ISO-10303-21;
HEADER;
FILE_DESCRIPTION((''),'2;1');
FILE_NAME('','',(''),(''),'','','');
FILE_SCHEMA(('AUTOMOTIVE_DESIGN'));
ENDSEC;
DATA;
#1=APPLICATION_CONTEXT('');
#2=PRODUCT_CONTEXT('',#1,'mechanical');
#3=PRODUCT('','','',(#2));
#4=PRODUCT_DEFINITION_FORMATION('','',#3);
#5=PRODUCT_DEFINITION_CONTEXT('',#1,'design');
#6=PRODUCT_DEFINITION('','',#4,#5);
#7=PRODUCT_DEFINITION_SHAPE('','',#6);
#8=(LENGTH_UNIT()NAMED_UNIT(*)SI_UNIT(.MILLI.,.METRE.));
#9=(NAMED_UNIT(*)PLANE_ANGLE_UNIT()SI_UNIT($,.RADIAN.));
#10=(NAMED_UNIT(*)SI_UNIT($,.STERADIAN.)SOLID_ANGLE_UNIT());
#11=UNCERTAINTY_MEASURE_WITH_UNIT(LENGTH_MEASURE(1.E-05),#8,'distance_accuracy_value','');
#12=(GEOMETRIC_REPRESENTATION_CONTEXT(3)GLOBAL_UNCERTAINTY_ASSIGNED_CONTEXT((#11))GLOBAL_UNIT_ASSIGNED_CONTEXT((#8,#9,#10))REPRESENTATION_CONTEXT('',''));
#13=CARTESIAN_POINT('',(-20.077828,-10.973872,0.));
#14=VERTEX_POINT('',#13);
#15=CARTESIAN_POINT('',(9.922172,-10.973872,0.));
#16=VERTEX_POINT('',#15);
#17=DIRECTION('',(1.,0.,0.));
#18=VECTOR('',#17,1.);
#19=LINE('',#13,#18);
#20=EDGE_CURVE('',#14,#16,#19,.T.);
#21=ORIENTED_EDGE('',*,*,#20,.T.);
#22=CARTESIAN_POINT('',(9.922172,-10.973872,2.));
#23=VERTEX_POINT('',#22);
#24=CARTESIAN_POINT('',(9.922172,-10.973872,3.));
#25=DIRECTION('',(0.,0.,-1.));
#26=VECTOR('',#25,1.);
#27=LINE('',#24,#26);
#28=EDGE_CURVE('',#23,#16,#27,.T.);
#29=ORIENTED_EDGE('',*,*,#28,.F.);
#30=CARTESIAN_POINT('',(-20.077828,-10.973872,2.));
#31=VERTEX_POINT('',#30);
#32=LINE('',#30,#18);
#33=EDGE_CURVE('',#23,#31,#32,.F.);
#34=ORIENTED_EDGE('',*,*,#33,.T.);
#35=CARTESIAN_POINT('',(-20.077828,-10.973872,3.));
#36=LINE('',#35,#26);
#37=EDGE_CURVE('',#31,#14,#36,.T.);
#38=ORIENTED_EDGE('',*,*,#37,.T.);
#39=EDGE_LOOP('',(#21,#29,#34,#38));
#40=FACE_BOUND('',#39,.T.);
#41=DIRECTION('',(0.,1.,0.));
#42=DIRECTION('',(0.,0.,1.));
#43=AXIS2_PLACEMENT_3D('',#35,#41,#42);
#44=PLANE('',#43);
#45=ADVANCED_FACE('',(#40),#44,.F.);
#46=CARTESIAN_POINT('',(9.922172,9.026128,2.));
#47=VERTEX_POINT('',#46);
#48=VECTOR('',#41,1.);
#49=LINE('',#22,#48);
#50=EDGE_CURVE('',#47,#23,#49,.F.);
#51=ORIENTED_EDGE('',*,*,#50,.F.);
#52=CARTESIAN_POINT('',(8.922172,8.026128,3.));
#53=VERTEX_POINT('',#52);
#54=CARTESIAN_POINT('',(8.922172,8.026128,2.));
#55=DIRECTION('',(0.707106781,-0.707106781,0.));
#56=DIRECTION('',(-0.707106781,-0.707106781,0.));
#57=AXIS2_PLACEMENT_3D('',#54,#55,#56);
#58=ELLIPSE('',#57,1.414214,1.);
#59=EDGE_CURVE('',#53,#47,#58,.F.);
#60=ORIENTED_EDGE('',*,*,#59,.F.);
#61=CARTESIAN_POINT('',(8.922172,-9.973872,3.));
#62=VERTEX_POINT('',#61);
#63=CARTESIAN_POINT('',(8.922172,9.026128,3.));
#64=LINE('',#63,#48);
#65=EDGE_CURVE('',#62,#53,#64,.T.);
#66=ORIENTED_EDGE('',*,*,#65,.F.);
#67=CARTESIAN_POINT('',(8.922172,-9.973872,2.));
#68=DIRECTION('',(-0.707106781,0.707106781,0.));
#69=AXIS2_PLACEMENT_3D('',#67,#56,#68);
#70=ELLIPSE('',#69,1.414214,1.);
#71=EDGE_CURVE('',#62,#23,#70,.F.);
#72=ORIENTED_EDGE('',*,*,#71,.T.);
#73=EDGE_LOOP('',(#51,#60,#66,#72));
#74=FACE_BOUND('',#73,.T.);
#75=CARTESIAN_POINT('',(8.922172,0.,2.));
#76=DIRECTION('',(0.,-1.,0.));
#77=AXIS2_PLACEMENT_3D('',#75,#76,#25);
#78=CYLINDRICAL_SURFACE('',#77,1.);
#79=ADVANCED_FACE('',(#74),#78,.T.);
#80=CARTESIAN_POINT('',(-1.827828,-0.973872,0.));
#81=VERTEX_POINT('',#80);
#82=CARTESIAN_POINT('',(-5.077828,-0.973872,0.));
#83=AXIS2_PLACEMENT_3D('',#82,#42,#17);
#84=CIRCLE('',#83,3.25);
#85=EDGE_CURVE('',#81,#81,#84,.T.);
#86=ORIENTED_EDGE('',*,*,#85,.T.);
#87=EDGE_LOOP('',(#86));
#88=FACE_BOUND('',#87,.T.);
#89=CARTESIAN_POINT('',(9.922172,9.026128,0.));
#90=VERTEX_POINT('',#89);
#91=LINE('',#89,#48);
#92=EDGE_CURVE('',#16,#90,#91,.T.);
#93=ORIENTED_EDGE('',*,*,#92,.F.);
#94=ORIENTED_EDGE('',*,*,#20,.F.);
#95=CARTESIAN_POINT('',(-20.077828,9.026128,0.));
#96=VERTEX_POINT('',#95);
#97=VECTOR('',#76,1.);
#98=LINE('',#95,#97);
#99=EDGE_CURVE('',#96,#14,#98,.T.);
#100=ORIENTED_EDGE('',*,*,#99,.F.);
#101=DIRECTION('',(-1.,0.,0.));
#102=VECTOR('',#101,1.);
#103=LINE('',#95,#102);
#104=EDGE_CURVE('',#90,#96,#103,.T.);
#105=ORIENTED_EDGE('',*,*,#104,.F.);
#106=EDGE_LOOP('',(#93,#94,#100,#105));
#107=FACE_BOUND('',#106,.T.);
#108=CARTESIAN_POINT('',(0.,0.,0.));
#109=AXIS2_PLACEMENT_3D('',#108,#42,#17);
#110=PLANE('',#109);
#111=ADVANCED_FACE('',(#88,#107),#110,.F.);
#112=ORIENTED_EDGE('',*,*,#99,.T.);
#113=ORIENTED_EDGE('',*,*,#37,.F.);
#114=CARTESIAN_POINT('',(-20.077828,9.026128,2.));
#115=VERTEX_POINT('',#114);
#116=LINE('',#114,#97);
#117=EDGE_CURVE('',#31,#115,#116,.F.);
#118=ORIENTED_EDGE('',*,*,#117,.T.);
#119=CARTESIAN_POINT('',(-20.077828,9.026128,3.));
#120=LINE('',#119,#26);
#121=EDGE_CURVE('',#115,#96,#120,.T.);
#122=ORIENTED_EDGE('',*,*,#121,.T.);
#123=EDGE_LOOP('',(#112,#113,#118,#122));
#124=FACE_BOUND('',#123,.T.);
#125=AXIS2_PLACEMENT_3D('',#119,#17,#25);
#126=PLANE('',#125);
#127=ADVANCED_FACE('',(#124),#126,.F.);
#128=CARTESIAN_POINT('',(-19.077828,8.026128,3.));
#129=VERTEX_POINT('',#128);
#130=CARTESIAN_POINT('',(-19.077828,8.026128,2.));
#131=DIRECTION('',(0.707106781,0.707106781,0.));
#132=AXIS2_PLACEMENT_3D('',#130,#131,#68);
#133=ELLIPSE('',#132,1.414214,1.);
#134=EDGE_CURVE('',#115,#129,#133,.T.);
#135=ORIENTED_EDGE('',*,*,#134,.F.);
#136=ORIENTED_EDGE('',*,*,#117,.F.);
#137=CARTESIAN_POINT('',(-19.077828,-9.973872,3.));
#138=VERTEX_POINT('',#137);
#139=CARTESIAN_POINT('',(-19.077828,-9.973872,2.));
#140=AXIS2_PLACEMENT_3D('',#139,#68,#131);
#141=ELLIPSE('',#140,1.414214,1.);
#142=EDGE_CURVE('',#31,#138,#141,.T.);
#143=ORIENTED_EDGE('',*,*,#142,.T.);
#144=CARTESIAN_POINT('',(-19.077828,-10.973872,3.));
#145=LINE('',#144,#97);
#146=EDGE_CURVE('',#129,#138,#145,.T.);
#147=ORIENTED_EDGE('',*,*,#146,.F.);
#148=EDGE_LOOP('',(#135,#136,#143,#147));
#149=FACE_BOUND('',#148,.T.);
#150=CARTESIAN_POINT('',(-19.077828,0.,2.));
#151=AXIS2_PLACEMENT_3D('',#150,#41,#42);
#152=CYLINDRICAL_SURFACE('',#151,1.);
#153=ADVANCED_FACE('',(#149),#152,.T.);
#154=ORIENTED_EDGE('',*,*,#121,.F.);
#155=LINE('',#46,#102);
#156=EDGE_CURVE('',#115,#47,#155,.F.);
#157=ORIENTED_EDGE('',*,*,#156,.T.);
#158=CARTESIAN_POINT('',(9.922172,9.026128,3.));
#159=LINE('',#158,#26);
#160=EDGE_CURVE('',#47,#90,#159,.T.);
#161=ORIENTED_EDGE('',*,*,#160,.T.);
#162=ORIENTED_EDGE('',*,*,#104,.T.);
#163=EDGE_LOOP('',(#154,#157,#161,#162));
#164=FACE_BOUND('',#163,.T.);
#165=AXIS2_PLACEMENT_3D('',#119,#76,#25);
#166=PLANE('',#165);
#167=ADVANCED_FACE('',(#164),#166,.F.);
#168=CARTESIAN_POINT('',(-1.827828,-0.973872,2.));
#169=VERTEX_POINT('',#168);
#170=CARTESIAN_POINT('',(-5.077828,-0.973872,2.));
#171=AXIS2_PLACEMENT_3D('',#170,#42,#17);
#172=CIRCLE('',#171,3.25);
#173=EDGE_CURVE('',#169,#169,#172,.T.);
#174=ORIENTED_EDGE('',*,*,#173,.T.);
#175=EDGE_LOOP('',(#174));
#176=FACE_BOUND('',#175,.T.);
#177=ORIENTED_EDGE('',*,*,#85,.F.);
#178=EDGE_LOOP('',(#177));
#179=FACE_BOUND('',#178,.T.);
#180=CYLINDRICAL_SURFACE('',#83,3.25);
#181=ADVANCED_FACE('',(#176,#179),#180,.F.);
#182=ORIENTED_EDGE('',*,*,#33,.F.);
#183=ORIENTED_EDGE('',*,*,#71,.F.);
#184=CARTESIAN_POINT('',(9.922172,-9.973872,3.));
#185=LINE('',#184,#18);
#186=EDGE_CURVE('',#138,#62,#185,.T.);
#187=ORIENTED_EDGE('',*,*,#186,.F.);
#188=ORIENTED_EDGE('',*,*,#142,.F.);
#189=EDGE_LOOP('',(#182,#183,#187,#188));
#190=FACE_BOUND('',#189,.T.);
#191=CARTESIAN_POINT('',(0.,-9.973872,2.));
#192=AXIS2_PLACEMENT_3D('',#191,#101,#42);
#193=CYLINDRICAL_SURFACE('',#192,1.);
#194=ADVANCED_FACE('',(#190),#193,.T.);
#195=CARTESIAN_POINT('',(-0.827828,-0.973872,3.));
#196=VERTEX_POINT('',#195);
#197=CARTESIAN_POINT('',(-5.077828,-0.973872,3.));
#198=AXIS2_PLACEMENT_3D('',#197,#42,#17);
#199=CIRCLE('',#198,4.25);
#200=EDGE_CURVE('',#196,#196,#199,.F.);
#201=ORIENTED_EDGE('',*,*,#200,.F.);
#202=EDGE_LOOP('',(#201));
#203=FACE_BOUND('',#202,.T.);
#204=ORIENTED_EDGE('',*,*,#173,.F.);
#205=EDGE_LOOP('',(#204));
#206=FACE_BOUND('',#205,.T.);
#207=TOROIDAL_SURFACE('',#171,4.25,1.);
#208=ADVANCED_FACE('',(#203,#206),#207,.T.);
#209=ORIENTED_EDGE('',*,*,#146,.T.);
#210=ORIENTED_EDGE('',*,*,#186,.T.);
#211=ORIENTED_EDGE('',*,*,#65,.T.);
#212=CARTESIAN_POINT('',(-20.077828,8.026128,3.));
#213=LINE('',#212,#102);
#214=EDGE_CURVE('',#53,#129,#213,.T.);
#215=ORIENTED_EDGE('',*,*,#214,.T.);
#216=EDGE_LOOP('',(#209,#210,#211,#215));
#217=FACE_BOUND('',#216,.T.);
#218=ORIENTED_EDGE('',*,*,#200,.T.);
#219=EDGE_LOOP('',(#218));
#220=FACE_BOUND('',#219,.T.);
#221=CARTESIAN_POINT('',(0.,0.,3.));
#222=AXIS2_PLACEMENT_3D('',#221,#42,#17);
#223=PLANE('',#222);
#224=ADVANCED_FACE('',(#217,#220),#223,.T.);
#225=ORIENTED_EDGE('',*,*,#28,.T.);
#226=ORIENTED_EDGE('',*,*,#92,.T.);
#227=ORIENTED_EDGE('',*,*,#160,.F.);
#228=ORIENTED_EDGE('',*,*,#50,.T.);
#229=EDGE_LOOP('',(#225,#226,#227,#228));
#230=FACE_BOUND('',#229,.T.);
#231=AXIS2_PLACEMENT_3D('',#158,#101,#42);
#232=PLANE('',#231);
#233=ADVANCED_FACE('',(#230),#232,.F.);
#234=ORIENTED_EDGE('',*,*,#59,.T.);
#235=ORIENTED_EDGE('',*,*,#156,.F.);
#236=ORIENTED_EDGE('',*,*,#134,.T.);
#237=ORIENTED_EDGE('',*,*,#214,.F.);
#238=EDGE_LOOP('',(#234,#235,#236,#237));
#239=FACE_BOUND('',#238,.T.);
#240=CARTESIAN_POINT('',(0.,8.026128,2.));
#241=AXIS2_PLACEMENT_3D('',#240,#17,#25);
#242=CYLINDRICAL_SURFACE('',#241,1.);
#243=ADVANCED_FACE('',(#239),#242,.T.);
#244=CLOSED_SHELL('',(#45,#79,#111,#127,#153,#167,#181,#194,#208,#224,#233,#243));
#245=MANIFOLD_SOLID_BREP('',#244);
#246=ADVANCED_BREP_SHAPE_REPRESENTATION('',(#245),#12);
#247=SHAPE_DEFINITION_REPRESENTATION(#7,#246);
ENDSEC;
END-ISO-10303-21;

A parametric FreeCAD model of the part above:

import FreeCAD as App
import Part
import Sketcher


def edges_at(feature, points):
    """Names of the edges that pass closest to the given points."""
    edges = feature.Shape.Edges
    near = lambda p: min(range(len(edges)), key=lambda i: edges[i].distToShape(Part.Vertex(*p))[0])
    return sorted({f"Edge{near(p) + 1}" for p in points})


def add_polygon(sketch, points):
    """Adds a closed chain of lines whose ends are joined by coincident constraints."""
    first, n = sketch.GeometryCount, len(points)
    for a, b in zip(points, points[1:] + points[:1]):
        sketch.addGeometry(Part.LineSegment(App.Vector(*a, 0), App.Vector(*b, 0)), False)
    for i in range(n):
        sketch.addConstraint(Sketcher.Constraint("Coincident", first + i, 2, first + (i + 1) % n, 1))

doc = App.newDocument("Part")
params = doc.addObject("Spreadsheet::Sheet", "Params")
for row, (alias, value) in enumerate([
    ("sketch1_width", "30 mm"),
    ("sketch1_height", "20 mm"),
    ("pad1_length", "3 mm"),
    ("sketch2_diameter", "6.5 mm"),
    ("pocket1_length", "3 mm"),
    ("fillet_radius", "1 mm"),
], start=1):
    params.set(f"A{row}", alias)
    params.set(f"B{row}", "=" + value)
    params.setAlias(f"B{row}", alias)

body = doc.addObject("PartDesign::Body", "Body")

sketch1 = body.newObject("Sketcher::SketchObject", "Sketch")
sketch1.AttachmentSupport = (doc.getObject("XY_Plane"), [""])
sketch1.MapMode = "FlatFace"
add_polygon(sketch1, [(-20, 9), (-20, -11), (10, -11), (10, 9)])
sketch1.addConstraint(Sketcher.Constraint("Vertical", 0))
sketch1.addConstraint(Sketcher.Constraint("Horizontal", 1))
sketch1.addConstraint(Sketcher.Constraint("Vertical", 2))
sketch1.addConstraint(Sketcher.Constraint("Horizontal", 3))
sketch1.addConstraint(Sketcher.Constraint("DistanceX", 1, 1, 1, 2, 30.0))
sketch1.addConstraint(Sketcher.Constraint("DistanceY", 0, 2, 0, 1, 20.0))
sketch1.addConstraint(Sketcher.Constraint("DistanceX", 0, 2, -1, 1, 20.077828))
sketch1.addConstraint(Sketcher.Constraint("DistanceY", 0, 2, -1, 1, 10.973872))
sketch1.setExpression("Constraints[8]", "Params.sketch1_width")
sketch1.setExpression("Constraints[9]", "Params.sketch1_height")
pad1 = body.newObject("PartDesign::Pad", "Pad")
pad1.Profile = sketch1
pad1.setExpression("Length", "Params.pad1_length")

sketch2 = body.newObject("Sketcher::SketchObject", "Sketch001")
sketch2.AttachmentSupport = (doc.getObject("XY_Plane"), [""])
sketch2.MapMode = "FlatFace"
sketch2.AttachmentOffset = App.Placement(App.Vector(0, 0, 3), App.Rotation())
sketch2.addGeometry(Part.Circle(App.Vector(-5.1, -1, 0), App.Vector(0, 0, 1), 3.2), False)
sketch2.addConstraint(Sketcher.Constraint("Diameter", 0, 6.5))
sketch2.addConstraint(Sketcher.Constraint("DistanceX", 0, 3, -1, 1, 5.077828))
sketch2.addConstraint(Sketcher.Constraint("DistanceY", 0, 3, -1, 1, 0.973872))
sketch2.setExpression("Constraints[0]", "Params.sketch2_diameter")
pocket1 = body.newObject("PartDesign::Pocket", "Pocket")
pocket1.Profile = sketch2
pocket1.setExpression("Length", "Params.pocket1_length")
doc.recompute()

fillet = body.newObject("PartDesign::Fillet", "Fillet")
fillet.Base = (pocket1, edges_at(pocket1, [
    (9.922, -0.974, 3),
    (-5.078, 9.026, 3),
    (-8.328, -0.974, 3),
    (-20.078, -0.974, 3),
    (-5.078, -10.974, 3),
]))
fillet.setExpression("Radius", "Params.fillet_radius")

doc.recompute()
